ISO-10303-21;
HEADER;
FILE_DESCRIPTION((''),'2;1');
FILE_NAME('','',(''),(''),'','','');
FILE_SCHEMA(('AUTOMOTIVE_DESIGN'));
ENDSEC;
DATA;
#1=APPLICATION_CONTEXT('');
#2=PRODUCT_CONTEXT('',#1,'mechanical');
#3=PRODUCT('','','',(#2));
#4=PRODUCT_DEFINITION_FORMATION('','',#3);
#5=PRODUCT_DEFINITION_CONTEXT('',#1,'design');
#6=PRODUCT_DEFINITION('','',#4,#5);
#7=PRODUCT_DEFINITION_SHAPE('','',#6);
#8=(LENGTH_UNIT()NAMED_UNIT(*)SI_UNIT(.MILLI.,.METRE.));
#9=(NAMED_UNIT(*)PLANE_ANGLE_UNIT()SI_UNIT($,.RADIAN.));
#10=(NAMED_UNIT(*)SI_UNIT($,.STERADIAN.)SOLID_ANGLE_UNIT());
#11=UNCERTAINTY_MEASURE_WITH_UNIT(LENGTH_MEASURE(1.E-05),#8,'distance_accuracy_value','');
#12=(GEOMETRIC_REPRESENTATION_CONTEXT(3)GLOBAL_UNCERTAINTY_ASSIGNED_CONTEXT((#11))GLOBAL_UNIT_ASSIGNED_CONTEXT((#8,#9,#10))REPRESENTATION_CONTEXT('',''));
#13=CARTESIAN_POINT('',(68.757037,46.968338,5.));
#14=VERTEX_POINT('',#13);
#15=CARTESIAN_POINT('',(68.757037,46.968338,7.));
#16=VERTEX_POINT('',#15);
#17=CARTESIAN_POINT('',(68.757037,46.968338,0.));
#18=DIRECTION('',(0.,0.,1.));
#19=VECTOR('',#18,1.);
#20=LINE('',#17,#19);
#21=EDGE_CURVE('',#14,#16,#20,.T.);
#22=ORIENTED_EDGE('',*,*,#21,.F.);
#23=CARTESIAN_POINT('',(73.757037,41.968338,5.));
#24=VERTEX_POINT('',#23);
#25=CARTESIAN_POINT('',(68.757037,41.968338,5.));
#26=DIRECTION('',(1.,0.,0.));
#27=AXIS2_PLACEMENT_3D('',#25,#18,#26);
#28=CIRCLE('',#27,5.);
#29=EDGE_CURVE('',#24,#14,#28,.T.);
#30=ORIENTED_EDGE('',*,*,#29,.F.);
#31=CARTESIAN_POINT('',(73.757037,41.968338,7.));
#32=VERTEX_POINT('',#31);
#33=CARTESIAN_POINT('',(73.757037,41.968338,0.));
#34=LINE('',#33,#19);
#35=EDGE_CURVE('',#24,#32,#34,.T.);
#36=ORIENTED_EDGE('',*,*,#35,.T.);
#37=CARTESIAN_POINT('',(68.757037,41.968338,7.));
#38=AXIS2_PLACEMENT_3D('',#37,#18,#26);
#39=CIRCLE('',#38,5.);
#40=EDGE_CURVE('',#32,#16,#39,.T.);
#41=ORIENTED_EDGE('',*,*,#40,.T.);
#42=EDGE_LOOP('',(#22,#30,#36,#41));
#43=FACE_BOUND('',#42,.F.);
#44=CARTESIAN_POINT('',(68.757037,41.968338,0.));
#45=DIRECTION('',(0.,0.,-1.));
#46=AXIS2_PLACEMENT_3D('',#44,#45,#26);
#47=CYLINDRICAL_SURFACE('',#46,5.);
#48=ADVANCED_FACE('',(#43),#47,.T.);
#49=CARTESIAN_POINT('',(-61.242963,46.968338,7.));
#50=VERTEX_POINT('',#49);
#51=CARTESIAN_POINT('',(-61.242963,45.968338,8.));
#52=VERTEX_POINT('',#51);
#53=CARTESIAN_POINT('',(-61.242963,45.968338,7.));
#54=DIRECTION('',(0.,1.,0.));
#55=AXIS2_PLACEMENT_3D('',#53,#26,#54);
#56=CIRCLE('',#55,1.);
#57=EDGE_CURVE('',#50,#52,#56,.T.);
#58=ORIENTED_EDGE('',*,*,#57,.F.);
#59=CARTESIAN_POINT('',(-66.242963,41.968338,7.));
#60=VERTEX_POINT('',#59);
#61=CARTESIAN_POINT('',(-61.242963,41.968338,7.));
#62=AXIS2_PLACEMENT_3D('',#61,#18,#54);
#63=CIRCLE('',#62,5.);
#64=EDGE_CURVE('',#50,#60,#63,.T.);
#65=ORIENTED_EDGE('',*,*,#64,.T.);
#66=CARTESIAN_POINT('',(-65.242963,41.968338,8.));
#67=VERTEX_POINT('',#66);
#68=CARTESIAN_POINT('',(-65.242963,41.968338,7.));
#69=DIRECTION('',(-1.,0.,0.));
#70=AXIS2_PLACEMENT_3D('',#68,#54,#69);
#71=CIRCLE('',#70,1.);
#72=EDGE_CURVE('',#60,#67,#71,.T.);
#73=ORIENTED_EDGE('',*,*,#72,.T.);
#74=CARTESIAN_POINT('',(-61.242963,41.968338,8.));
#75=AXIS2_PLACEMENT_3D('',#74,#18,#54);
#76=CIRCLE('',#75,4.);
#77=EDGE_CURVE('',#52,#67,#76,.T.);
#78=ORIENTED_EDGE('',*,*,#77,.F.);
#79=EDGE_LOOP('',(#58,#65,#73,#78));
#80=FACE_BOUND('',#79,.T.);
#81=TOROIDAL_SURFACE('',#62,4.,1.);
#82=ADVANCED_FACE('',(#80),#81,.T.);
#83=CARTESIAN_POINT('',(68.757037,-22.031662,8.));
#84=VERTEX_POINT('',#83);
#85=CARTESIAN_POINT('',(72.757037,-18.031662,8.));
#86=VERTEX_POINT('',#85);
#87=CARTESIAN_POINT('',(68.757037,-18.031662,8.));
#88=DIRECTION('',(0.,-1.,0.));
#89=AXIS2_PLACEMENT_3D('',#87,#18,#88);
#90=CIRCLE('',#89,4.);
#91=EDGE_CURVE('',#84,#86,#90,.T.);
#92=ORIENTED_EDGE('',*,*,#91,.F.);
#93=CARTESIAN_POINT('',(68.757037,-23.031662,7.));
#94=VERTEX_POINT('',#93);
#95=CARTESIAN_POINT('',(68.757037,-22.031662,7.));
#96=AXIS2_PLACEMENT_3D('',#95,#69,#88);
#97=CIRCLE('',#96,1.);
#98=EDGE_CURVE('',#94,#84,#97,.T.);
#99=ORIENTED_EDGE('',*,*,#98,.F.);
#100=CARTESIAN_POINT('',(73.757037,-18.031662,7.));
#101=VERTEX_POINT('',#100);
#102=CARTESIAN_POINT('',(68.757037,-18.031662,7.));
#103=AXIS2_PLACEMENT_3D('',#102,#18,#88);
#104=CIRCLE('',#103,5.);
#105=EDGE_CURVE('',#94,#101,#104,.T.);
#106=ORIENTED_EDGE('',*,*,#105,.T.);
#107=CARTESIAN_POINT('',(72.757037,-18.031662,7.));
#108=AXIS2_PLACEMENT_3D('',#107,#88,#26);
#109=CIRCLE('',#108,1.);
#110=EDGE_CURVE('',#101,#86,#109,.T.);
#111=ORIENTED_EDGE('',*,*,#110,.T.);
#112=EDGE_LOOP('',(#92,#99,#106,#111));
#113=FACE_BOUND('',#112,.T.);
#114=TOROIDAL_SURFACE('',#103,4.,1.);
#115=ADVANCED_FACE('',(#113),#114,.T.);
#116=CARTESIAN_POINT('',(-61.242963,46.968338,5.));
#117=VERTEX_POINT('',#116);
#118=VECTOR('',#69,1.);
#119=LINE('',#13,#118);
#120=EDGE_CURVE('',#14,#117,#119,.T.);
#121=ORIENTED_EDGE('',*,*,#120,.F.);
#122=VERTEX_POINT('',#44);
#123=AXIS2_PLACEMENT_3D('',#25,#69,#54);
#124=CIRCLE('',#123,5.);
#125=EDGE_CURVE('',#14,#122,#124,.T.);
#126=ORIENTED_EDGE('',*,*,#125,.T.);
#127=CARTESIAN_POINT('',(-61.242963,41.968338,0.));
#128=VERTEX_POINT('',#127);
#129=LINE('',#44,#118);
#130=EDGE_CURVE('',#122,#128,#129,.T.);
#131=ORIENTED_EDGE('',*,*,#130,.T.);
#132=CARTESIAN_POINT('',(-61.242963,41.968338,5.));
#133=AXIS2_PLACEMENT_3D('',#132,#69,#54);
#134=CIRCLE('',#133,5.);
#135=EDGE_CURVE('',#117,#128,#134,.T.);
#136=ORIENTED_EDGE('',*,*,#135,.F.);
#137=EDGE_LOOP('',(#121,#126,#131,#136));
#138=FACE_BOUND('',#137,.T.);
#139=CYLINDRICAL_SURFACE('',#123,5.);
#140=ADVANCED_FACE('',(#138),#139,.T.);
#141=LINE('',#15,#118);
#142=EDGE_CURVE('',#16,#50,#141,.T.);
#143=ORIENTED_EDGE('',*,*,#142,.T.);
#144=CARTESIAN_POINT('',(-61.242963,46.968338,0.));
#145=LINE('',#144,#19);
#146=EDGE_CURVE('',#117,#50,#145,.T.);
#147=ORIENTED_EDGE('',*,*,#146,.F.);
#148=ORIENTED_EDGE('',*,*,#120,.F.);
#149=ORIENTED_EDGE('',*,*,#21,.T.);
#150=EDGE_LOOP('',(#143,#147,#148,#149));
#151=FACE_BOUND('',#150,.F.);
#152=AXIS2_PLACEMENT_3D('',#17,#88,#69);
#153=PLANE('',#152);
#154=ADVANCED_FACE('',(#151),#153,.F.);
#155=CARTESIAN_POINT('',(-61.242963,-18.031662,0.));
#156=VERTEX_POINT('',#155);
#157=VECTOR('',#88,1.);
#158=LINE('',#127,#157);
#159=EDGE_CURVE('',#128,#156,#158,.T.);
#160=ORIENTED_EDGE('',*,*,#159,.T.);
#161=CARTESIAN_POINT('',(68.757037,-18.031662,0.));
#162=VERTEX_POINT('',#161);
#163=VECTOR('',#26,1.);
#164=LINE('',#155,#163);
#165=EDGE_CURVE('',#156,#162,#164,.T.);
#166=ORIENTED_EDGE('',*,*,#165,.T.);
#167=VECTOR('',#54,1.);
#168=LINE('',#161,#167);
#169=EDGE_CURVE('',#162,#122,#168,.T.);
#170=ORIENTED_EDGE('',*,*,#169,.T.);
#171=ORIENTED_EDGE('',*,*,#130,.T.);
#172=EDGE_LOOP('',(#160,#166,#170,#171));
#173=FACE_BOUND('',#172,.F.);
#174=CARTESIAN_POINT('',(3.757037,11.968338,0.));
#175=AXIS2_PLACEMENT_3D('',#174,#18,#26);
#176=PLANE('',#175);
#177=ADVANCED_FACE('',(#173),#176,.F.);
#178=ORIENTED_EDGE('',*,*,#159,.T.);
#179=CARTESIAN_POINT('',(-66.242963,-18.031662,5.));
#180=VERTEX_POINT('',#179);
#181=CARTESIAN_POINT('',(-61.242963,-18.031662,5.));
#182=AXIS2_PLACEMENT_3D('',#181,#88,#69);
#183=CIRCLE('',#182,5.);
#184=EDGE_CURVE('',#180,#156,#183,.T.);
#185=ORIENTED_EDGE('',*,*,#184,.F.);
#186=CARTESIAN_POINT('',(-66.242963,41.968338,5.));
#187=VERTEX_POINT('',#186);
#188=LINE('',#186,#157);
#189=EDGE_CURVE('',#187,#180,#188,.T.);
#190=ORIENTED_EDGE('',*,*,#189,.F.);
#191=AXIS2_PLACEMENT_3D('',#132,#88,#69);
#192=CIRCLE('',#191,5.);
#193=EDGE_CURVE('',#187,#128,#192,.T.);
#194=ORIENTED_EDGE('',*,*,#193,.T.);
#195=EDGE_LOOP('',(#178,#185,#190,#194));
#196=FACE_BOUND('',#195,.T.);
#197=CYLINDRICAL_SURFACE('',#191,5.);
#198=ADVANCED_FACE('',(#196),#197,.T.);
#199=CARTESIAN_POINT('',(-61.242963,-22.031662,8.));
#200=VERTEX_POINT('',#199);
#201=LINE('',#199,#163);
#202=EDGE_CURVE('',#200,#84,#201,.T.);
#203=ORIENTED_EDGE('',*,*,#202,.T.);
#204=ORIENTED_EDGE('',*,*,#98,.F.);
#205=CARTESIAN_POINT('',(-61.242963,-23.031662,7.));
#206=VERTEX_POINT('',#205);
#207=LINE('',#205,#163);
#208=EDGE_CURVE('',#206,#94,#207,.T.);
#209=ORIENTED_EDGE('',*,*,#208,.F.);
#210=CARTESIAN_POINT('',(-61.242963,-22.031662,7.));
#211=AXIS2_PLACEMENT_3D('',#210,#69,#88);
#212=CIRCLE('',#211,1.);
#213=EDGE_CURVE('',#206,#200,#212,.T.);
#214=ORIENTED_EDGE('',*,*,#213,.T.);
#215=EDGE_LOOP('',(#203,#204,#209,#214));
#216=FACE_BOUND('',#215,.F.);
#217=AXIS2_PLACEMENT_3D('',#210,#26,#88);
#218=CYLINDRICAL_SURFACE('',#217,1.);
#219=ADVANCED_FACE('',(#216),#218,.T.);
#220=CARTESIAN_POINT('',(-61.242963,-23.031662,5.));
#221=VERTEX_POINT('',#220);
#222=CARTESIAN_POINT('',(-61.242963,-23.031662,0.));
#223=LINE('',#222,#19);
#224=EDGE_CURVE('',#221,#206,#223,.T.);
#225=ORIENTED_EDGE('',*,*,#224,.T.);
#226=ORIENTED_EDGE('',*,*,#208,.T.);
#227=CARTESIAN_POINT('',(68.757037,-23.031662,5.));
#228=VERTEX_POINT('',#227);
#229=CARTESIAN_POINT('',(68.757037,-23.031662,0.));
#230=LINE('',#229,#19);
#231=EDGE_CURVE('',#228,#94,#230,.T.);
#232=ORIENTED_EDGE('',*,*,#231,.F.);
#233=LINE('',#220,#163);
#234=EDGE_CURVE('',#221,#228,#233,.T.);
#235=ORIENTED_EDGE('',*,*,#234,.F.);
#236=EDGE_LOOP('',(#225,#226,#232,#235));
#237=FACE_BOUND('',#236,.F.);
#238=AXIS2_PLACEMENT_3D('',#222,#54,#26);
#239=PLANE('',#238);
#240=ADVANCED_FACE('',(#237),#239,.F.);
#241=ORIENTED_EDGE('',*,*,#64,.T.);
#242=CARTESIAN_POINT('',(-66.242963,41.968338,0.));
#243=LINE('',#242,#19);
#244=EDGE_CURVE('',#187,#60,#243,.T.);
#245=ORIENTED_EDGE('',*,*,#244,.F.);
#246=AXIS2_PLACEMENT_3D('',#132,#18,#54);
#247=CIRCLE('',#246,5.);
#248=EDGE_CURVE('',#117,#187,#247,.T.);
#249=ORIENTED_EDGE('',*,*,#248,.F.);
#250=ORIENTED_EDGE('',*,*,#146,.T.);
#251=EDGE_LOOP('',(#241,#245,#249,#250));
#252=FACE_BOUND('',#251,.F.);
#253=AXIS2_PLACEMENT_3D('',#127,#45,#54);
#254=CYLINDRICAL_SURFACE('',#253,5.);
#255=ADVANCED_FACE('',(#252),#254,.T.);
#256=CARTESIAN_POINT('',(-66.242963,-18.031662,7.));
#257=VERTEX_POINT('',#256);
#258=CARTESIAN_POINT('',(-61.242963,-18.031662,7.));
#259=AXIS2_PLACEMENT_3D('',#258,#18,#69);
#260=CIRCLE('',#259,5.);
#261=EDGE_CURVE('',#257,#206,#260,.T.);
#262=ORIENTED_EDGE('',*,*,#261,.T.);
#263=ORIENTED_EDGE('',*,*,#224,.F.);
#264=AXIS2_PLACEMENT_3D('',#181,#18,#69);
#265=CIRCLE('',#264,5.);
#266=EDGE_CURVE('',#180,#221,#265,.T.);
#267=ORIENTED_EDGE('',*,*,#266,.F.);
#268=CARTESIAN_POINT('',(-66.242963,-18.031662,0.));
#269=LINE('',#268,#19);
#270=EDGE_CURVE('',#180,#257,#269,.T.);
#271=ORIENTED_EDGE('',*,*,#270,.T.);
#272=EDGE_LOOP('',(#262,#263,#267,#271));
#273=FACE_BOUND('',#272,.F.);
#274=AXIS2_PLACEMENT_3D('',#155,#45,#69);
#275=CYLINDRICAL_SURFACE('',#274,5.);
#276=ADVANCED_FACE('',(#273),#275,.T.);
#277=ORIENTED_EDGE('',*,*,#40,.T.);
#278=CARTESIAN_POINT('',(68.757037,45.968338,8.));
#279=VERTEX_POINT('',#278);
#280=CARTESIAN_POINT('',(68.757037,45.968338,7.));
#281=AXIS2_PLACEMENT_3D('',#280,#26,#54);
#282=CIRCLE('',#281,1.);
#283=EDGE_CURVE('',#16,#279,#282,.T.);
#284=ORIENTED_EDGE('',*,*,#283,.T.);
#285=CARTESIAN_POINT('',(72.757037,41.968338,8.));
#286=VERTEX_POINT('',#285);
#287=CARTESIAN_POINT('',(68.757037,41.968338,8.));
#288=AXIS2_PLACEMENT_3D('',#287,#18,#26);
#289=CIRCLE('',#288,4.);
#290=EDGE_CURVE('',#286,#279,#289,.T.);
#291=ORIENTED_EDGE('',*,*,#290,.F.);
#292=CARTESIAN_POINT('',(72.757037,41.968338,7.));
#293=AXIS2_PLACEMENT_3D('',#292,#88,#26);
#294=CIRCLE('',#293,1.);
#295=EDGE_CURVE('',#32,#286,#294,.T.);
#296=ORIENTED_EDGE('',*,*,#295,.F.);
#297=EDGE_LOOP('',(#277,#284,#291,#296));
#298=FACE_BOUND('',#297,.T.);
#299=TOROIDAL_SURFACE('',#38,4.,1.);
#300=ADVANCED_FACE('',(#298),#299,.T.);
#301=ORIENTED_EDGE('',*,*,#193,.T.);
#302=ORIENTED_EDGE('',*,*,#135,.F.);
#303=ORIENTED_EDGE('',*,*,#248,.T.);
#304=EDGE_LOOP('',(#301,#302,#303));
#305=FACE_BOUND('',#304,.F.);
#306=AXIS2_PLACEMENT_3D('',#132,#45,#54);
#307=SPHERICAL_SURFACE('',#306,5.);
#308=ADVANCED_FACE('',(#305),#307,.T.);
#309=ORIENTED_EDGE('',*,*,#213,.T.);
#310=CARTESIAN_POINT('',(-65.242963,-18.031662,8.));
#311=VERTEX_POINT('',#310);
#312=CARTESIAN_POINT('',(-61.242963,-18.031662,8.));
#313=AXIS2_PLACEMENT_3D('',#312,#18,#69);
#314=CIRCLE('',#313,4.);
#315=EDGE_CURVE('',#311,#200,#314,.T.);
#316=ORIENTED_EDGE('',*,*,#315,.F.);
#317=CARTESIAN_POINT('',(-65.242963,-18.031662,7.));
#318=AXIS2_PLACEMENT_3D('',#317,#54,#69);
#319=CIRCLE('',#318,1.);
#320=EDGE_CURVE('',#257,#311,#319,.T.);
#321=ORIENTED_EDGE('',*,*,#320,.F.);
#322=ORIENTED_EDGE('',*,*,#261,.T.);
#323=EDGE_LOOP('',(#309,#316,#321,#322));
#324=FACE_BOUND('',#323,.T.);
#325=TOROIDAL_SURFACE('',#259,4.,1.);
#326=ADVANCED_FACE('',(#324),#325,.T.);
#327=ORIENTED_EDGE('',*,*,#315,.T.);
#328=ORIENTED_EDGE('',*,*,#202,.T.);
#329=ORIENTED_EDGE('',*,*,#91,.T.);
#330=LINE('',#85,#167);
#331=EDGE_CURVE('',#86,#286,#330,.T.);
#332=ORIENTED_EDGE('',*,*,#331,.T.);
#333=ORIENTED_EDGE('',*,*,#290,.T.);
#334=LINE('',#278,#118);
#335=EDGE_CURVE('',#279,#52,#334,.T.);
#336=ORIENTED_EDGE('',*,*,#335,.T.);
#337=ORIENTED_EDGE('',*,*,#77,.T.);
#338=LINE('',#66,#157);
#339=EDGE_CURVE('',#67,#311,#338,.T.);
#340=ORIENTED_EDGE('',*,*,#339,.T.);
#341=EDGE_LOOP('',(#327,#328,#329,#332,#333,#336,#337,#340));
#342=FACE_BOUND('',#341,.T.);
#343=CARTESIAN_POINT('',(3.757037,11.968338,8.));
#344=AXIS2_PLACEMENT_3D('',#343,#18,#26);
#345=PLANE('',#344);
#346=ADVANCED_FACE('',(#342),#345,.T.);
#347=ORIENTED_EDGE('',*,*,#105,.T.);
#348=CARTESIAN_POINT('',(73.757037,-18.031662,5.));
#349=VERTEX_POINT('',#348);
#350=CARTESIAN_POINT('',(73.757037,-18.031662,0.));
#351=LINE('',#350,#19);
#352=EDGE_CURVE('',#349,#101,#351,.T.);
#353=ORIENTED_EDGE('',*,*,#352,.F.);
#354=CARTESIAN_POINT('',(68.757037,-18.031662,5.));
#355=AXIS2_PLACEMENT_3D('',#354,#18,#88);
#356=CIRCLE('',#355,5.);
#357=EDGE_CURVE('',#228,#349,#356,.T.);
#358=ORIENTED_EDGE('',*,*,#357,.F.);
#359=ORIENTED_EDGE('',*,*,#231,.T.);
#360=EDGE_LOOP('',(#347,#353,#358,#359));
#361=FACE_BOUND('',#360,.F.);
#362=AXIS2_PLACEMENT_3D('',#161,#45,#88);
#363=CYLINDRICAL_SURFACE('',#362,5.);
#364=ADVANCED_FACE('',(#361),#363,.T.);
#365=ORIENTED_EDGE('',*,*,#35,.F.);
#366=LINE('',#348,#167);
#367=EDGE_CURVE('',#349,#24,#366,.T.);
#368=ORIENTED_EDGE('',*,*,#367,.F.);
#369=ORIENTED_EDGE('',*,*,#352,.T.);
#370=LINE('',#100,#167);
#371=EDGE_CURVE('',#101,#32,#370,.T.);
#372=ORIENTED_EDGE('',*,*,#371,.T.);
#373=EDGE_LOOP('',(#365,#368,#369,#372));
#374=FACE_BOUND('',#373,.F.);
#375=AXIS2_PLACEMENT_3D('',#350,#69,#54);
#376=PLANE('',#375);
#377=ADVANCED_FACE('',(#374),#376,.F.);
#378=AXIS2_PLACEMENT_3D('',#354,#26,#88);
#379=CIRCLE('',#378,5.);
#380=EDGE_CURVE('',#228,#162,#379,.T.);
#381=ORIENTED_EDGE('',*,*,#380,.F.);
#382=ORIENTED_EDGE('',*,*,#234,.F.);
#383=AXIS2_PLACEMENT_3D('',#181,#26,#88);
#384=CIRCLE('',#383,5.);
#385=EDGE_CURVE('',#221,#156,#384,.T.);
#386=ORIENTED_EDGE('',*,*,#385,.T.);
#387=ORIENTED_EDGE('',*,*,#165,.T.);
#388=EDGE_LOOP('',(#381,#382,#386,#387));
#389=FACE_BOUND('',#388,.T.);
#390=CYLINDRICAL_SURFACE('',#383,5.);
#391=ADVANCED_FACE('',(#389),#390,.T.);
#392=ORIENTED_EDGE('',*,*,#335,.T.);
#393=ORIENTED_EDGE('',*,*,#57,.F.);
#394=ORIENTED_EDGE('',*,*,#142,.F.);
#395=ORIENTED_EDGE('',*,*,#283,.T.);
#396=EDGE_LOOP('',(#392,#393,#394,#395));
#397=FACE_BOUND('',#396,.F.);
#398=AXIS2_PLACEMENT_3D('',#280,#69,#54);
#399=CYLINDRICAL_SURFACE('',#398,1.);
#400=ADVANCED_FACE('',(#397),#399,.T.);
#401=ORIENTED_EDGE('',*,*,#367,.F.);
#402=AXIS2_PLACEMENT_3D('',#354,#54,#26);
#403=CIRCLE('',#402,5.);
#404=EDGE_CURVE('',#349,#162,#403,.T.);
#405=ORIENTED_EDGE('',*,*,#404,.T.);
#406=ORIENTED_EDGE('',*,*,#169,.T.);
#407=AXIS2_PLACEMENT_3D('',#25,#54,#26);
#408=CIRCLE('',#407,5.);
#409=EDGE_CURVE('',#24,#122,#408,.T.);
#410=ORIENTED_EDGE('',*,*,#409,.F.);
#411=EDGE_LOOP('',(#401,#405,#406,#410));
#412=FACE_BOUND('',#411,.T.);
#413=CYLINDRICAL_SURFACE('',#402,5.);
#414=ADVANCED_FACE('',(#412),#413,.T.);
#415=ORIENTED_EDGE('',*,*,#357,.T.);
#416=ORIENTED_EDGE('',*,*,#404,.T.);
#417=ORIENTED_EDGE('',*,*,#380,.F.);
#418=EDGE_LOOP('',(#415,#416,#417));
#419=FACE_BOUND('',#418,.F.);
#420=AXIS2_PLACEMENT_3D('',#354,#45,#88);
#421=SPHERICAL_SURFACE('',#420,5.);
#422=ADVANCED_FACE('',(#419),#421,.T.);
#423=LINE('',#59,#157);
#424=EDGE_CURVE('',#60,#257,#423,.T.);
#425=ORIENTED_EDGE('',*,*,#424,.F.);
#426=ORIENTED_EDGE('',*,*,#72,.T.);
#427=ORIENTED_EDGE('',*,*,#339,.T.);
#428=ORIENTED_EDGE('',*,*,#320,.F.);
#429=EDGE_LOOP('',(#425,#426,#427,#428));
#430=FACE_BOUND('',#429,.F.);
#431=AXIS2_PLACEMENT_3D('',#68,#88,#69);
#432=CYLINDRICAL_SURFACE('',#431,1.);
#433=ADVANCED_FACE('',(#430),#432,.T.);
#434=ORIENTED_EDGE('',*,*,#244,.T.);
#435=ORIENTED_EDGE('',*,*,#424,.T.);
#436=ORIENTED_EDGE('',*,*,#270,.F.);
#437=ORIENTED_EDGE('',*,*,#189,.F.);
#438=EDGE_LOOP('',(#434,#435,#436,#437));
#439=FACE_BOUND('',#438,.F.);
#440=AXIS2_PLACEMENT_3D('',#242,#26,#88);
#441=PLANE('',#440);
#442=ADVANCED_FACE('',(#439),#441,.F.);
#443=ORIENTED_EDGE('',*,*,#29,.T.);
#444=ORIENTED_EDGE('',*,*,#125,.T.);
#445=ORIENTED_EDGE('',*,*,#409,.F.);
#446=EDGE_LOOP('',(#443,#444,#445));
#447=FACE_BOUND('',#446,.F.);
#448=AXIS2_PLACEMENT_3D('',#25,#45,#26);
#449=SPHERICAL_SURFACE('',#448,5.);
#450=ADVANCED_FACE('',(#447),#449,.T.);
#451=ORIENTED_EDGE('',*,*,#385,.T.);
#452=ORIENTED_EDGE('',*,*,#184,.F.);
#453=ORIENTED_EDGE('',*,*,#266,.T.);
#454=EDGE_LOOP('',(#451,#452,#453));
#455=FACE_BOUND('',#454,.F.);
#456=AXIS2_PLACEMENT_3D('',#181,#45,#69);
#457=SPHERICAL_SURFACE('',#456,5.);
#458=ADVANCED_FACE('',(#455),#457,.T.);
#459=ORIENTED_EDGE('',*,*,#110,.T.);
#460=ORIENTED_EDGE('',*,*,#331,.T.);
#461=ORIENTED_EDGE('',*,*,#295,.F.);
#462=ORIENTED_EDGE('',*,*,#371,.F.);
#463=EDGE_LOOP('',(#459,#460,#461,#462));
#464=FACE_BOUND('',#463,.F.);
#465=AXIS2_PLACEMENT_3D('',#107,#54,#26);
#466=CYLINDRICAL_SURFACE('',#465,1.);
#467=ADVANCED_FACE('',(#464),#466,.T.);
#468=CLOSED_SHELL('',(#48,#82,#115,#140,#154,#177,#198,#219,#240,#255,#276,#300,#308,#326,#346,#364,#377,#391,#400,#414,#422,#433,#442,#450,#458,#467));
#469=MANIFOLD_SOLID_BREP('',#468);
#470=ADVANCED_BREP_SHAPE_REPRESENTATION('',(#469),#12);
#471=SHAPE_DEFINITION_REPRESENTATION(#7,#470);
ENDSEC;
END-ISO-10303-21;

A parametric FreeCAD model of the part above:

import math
import FreeCAD as App
import Part
import Sketcher
Q = App.Units.Quantity


def edges_at(feature, points):
    """Names of the edges that pass closest to the given points."""
    edges = feature.Shape.Edges
    near = lambda p: min(range(len(edges)), key=lambda i: edges[i].distToShape(Part.Vertex(*p))[0])
    return sorted({f"Edge{near(p) + 1}" for p in points})

doc = App.newDocument("Part")
body = doc.addObject("PartDesign::Body", "Body")

# Sketch on XY plane
sketch1 = body.newObject("Sketcher::SketchObject", "Sketch")
sketch1.AttachmentSupport = (doc.getObject("XY_Plane"), [""])
sketch1.MapMode = "FlatFace"
sketch1.addGeometry(Part.LineSegment(App.Vector(69, 47, 0), App.Vector(-61, 47, 0)), False)
sketch1.addGeometry(Part.ArcOfCircle(Part.Circle(App.Vector(-61, 42, 0), App.Vector(0, 0, 1), 5), math.radians(90), math.radians(180)), False)
sketch1.addGeometry(Part.LineSegment(App.Vector(-66, 42, 0), App.Vector(-66, -18, 0)), False)
sketch1.addGeometry(Part.ArcOfCircle(Part.Circle(App.Vector(-61, -18, 0), App.Vector(0, 0, 1), 5), math.radians(180), math.radians(270)), False)
sketch1.addGeometry(Part.LineSegment(App.Vector(-61, -23, 0), App.Vector(69, -23, 0)), False)
sketch1.addGeometry(Part.ArcOfCircle(Part.Circle(App.Vector(69, -18, 0), App.Vector(0, 0, 1), 5), math.radians(-90), math.radians(0)), False)
sketch1.addGeometry(Part.LineSegment(App.Vector(74, -18, 0), App.Vector(74, 42, 0)), False)
sketch1.addGeometry(Part.ArcOfCircle(Part.Circle(App.Vector(69, 42, 0), App.Vector(0, 0, 1), 5), math.radians(0), math.radians(90)), False)
sketch1.addConstraint(Sketcher.Constraint("Tangent", 0, 2, 1, 1))
sketch1.addConstraint(Sketcher.Constraint("Tangent", 1, 2, 2, 1))
sketch1.addConstraint(Sketcher.Constraint("Tangent", 2, 2, 3, 1))
sketch1.addConstraint(Sketcher.Constraint("Tangent", 3, 2, 4, 1))
sketch1.addConstraint(Sketcher.Constraint("Tangent", 4, 2, 5, 1))
sketch1.addConstraint(Sketcher.Constraint("Tangent", 5, 2, 6, 1))
sketch1.addConstraint(Sketcher.Constraint("Tangent", 6, 2, 7, 1))
sketch1.addConstraint(Sketcher.Constraint("Tangent", 7, 2, 0, 1))
sketch1.addConstraint(Sketcher.Constraint("Horizontal", 0))
sketch1.addConstraint(Sketcher.Constraint("Vertical", 2))
sketch1.addConstraint(Sketcher.Constraint("Horizontal", 4))
sketch1.addConstraint(Sketcher.Constraint("Vertical", 6))
sketch1.addConstraint(Sketcher.Constraint("Equal", 1, 3))
sketch1.addConstraint(Sketcher.Constraint("Equal", 3, 5))
sketch1.addConstraint(Sketcher.Constraint("Equal", 5, 7))
sketch1.addConstraint(Sketcher.Constraint("Radius", 1, Q("5 mm")))
sketch1.addConstraint(Sketcher.Constraint("DistanceX", 0, 2, 0, 1, Q("130 mm")))
sketch1.addConstraint(Sketcher.Constraint("DistanceY", 2, 2, 2, 1, Q("60 mm")))
sketch1.addConstraint(Sketcher.Constraint("DistanceX", 1, 3, -1, 1, Q("61.242963 mm")))
sketch1.addConstraint(Sketcher.Constraint("DistanceY", -1, 1, 1, 3, Q("41.968338 mm")))
pad1 = body.newObject("PartDesign::Pad", "Pad")
pad1.Profile = sketch1
pad1.Length = 8
doc.recompute()

fillet = body.newObject("PartDesign::Fillet", "Fillet")
fillet.Base = (pad1, edges_at(pad1, [(3.757, -23.032, 0), (73.757, 11.968, 0)]))
fillet.Radius = 5
doc.recompute()

fillet2 = body.newObject("PartDesign::Fillet", "Fillet001")
fillet2.Base = (fillet, edges_at(fillet, [
    (3.757, 46.968, 8),
    (-64.778, 45.504, 8),
    (-66.243, 11.968, 8),
    (-64.778, -21.567, 8),
    (3.757, -23.032, 8),
    (72.293, -21.567, 8),
    (73.757, 11.968, 8),
    (72.293, 45.504, 8),
]))
fillet2.Radius = 1

doc.recompute()
